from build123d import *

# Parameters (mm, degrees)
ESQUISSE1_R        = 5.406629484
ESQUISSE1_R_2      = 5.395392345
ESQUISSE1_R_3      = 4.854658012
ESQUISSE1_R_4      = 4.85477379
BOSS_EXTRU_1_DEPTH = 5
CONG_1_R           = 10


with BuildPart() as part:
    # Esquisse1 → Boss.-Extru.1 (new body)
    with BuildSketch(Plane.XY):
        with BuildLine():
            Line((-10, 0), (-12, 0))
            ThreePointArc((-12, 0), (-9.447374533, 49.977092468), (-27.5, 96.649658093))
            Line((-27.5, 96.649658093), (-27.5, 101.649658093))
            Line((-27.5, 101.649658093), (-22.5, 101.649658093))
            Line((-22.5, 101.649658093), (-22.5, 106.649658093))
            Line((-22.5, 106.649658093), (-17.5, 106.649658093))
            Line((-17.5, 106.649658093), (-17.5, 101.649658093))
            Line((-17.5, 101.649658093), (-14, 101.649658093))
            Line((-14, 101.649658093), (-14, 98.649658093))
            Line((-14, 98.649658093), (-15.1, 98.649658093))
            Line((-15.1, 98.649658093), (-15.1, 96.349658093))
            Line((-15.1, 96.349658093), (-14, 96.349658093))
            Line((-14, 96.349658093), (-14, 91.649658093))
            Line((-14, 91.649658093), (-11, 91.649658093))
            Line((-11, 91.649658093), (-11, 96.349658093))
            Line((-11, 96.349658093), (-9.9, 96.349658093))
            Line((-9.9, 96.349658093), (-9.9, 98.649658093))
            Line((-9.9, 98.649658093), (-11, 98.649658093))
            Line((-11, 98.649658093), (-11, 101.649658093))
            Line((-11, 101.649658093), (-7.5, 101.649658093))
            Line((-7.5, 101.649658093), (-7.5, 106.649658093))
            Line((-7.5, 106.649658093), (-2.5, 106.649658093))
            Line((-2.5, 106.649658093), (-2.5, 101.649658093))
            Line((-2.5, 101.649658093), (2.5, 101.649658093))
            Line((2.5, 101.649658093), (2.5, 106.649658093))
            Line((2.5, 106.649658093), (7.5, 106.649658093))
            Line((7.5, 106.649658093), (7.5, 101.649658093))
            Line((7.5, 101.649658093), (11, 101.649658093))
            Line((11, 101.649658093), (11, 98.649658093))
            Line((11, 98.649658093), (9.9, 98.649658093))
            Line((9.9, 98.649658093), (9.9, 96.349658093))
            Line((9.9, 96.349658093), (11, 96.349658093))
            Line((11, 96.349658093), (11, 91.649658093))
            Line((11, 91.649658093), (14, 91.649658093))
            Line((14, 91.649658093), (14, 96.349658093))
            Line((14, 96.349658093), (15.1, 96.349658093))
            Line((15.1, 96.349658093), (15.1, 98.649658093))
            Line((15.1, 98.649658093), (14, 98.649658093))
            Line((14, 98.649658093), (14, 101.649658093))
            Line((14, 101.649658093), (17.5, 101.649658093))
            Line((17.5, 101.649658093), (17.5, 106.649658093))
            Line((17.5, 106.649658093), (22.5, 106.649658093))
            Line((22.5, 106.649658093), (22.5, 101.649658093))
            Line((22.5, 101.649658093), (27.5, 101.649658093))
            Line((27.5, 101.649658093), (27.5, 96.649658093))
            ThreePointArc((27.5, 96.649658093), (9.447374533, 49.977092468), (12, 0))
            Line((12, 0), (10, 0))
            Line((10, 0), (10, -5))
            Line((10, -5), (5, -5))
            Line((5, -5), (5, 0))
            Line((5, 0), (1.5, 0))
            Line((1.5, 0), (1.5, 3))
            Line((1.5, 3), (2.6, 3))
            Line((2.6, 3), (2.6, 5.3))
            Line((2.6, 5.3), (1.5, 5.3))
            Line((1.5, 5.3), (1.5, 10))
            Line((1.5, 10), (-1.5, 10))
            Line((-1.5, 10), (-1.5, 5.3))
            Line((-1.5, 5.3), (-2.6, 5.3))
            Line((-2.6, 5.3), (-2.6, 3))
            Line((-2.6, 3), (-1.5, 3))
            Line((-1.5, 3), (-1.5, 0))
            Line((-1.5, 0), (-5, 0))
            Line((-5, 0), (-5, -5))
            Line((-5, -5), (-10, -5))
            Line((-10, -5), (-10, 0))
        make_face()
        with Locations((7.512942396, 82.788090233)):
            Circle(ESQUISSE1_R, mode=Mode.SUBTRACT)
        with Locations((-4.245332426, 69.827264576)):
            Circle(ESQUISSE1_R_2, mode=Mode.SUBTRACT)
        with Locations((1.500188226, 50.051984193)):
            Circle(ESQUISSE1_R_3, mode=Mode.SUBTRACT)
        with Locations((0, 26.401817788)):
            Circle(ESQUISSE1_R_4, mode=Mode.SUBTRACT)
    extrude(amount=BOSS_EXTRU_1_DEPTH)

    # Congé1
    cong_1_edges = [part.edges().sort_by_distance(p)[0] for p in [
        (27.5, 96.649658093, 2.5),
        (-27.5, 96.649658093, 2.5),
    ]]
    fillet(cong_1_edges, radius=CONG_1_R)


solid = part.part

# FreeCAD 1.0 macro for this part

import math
import FreeCAD as App
import Part
import Sketcher


def edges_at(feature, points):
    """Names of the edges that pass closest to the given points."""
    edges = feature.Shape.Edges
    near = lambda p: min(range(len(edges)), key=lambda i: edges[i].distToShape(Part.Vertex(*p))[0])
    return sorted({f"Edge{near(p) + 1}" for p in points})

doc = App.newDocument("Part")
body = doc.addObject("PartDesign::Body", "Body")

sketch1 = body.newObject("Sketcher::SketchObject", "Sketch")
sketch1.AttachmentSupport = (doc.getObject("XY_Plane"), [""])
sketch1.MapMode = "FlatFace"
sketch1.addGeometry([
    Part.LineSegment(App.Vector(-12, 0, 0), App.Vector(-10, 0, 0)),
    Part.LineSegment(App.Vector(-10, 0, 0), App.Vector(-10, -5, 0)),
    Part.LineSegment(App.Vector(-10, -5, 0), App.Vector(-5, -5, 0)),
    Part.LineSegment(App.Vector(-5, -5, 0), App.Vector(-5, 0, 0)),
    Part.LineSegment(App.Vector(-5, 0, 0), App.Vector(-1.5, 0, 0)),
    Part.LineSegment(App.Vector(-1.5, 0, 0), App.Vector(-1.5, 3, 0)),
    Part.LineSegment(App.Vector(-1.5, 3, 0), App.Vector(-2.6, 3, 0)),
    Part.LineSegment(App.Vector(-2.6, 3, 0), App.Vector(-2.6, 5.3, 0)),
    Part.LineSegment(App.Vector(-2.6, 5.3, 0), App.Vector(-1.5, 5.3, 0)),
    Part.LineSegment(App.Vector(-1.5, 5.3, 0), App.Vector(-1.5, 10, 0)),
    Part.LineSegment(App.Vector(-1.5, 10, 0), App.Vector(1.5, 10, 0)),
    Part.LineSegment(App.Vector(1.5, 10, 0), App.Vector(1.5, 5.3, 0)),
    Part.LineSegment(App.Vector(1.5, 5.3, 0), App.Vector(2.6, 5.3, 0)),
    Part.LineSegment(App.Vector(2.6, 5.3, 0), App.Vector(2.6, 3, 0)),
    Part.LineSegment(App.Vector(2.6, 3, 0), App.Vector(1.5, 3, 0)),
    Part.LineSegment(App.Vector(1.5, 3, 0), App.Vector(1.5, 0, 0)),
    Part.LineSegment(App.Vector(1.5, 0, 0), App.Vector(5, 0, 0)),
    Part.LineSegment(App.Vector(5, 0, 0), App.Vector(5, -5, 0)),
    Part.LineSegment(App.Vector(5, -5, 0), App.Vector(10, -5, 0)),
    Part.LineSegment(App.Vector(10, -5, 0), App.Vector(10, 0, 0)),
    Part.LineSegment(App.Vector(10, 0, 0), App.Vector(12, 0, 0)),
    Part.ArcOfCircle(Part.Circle(App.Vector(127.933347, 30.975136, 0), App.Vector(0, 0, 1), 120), math.radians(146.818865), math.radians(194.958903)),
    Part.LineSegment(App.Vector(27.5, 96.649658, 0), App.Vector(27.5, 101.649658, 0)),
    Part.LineSegment(App.Vector(27.5, 101.649658, 0), App.Vector(22.5, 101.649658, 0)),
    Part.LineSegment(App.Vector(22.5, 101.649658, 0), App.Vector(22.5, 106.649658, 0)),
    Part.LineSegment(App.Vector(22.5, 106.649658, 0), App.Vector(17.5, 106.649658, 0)),
    Part.LineSegment(App.Vector(17.5, 106.649658, 0), App.Vector(17.5, 101.649658, 0)),
    Part.LineSegment(App.Vector(17.5, 101.649658, 0), App.Vector(14, 101.649658, 0)),
    Part.LineSegment(App.Vector(14, 101.649658, 0), App.Vector(14, 98.649658, 0)),
    Part.LineSegment(App.Vector(14, 98.649658, 0), App.Vector(15.1, 98.649658, 0)),
    Part.LineSegment(App.Vector(15.1, 98.649658, 0), App.Vector(15.1, 96.349658, 0)),
    Part.LineSegment(App.Vector(15.1, 96.349658, 0), App.Vector(14, 96.349658, 0)),
    Part.LineSegment(App.Vector(14, 96.349658, 0), App.Vector(14, 91.649658, 0)),
    Part.LineSegment(App.Vector(14, 91.649658, 0), App.Vector(11, 91.649658, 0)),
    Part.LineSegment(App.Vector(11, 91.649658, 0), App.Vector(11, 96.349658, 0)),
    Part.LineSegment(App.Vector(11, 96.349658, 0), App.Vector(9.9, 96.349658, 0)),
    Part.LineSegment(App.Vector(9.9, 96.349658, 0), App.Vector(9.9, 98.649658, 0)),
    Part.LineSegment(App.Vector(9.9, 98.649658, 0), App.Vector(11, 98.649658, 0)),
    Part.LineSegment(App.Vector(11, 98.649658, 0), App.Vector(11, 101.649658, 0)),
    Part.LineSegment(App.Vector(11, 101.649658, 0), App.Vector(7.5, 101.649658, 0)),
    Part.LineSegment(App.Vector(7.5, 101.649658, 0), App.Vector(7.5, 106.649658, 0)),
    Part.LineSegment(App.Vector(7.5, 106.649658, 0), App.Vector(2.5, 106.649658, 0)),
    Part.LineSegment(App.Vector(2.5, 106.649658, 0), App.Vector(2.5, 101.649658, 0)),
    Part.LineSegment(App.Vector(2.5, 101.649658, 0), App.Vector(-2.5, 101.649658, 0)),
    Part.LineSegment(App.Vector(-2.5, 101.649658, 0), App.Vector(-2.5, 106.649658, 0)),
    Part.LineSegment(App.Vector(-2.5, 106.649658, 0), App.Vector(-7.5, 106.649658, 0)),
    Part.LineSegment(App.Vector(-7.5, 106.649658, 0), App.Vector(-7.5, 101.649658, 0)),
    Part.LineSegment(App.Vector(-7.5, 101.649658, 0), App.Vector(-11, 101.649658, 0)),
    Part.LineSegment(App.Vector(-11, 101.649658, 0), App.Vector(-11, 98.649658, 0)),
    Part.LineSegment(App.Vector(-11, 98.649658, 0), App.Vector(-9.9, 98.649658, 0)),
    Part.LineSegment(App.Vector(-9.9, 98.649658, 0), App.Vector(-9.9, 96.349658, 0)),
    Part.LineSegment(App.Vector(-9.9, 96.349658, 0), App.Vector(-11, 96.349658, 0)),
    Part.LineSegment(App.Vector(-11, 96.349658, 0), App.Vector(-11, 91.649658, 0)),
    Part.LineSegment(App.Vector(-11, 91.649658, 0), App.Vector(-14, 91.649658, 0)),
    Part.LineSegment(App.Vector(-14, 91.649658, 0), App.Vector(-14, 96.349658, 0)),
    Part.LineSegment(App.Vector(-14, 96.349658, 0), App.Vector(-15.1, 96.349658, 0)),
    Part.LineSegment(App.Vector(-15.1, 96.349658, 0), App.Vector(-15.1, 98.649658, 0)),
    Part.LineSegment(App.Vector(-15.1, 98.649658, 0), App.Vector(-14, 98.649658, 0)),
    Part.LineSegment(App.Vector(-14, 98.649658, 0), App.Vector(-14, 101.649658, 0)),
    Part.LineSegment(App.Vector(-14, 101.649658, 0), App.Vector(-17.5, 101.649658, 0)),
    Part.LineSegment(App.Vector(-17.5, 101.649658, 0), App.Vector(-17.5, 106.649658, 0)),
    Part.LineSegment(App.Vector(-17.5, 106.649658, 0), App.Vector(-22.5, 106.649658, 0)),
    Part.LineSegment(App.Vector(-22.5, 106.649658, 0), App.Vector(-22.5, 101.649658, 0)),
    Part.LineSegment(App.Vector(-22.5, 101.649658, 0), App.Vector(-27.5, 101.649658, 0)),
    Part.LineSegment(App.Vector(-27.5, 101.649658, 0), App.Vector(-27.5, 96.649658, 0)),
    Part.ArcOfCircle(Part.Circle(App.Vector(-127.933347, 30.975136, 0), App.Vector(0, 0, 1), 120), math.radians(-14.958903), math.radians(33.181135)),
    Part.Circle(App.Vector(0, 26.401818, 0), App.Vector(0, 0, 1), 4.854774),
    Part.Circle(App.Vector(1.500188, 50.051984, 0), App.Vector(0, 0, 1), 4.854658),
    Part.Circle(App.Vector(7.512942, 82.78809, 0), App.Vector(0, 0, 1), 5.406629),
    Part.Circle(App.Vector(-4.245332, 69.827265, 0), App.Vector(0, 0, 1), 5.395392),
], False)
sketch1.addConstraint([
    Sketcher.Constraint("Coincident", 0, 2, 1, 1),
    Sketcher.Constraint("Coincident", 1, 2, 2, 1),
    Sketcher.Constraint("Coincident", 2, 2, 3, 1),
    Sketcher.Constraint("Coincident", 3, 2, 4, 1),
    Sketcher.Constraint("Coincident", 4, 2, 5, 1),
    Sketcher.Constraint("Coincident", 5, 2, 6, 1),
    Sketcher.Constraint("Coincident", 6, 2, 7, 1),
    Sketcher.Constraint("Coincident", 7, 2, 8, 1),
    Sketcher.Constraint("Coincident", 8, 2, 9, 1),
    Sketcher.Constraint("Coincident", 9, 2, 10, 1),
    Sketcher.Constraint("Coincident", 10, 2, 11, 1),
    Sketcher.Constraint("Coincident", 11, 2, 12, 1),
    Sketcher.Constraint("Coincident", 12, 2, 13, 1),
    Sketcher.Constraint("Coincident", 13, 2, 14, 1),
    Sketcher.Constraint("Coincident", 14, 2, 15, 1),
    Sketcher.Constraint("Coincident", 15, 2, 16, 1),
    Sketcher.Constraint("Coincident", 16, 2, 17, 1),
    Sketcher.Constraint("Coincident", 17, 2, 18, 1),
    Sketcher.Constraint("Coincident", 18, 2, 19, 1),
    Sketcher.Constraint("Coincident", 19, 2, 20, 1),
    Sketcher.Constraint("Coincident", 20, 2, 21, 2),
    Sketcher.Constraint("Coincident", 21, 1, 22, 1),
    Sketcher.Constraint("Coincident", 22, 2, 23, 1),
    Sketcher.Constraint("Coincident", 23, 2, 24, 1),
    Sketcher.Constraint("Coincident", 24, 2, 25, 1),
    Sketcher.Constraint("Coincident", 25, 2, 26, 1),
    Sketcher.Constraint("Coincident", 26, 2, 27, 1),
    Sketcher.Constraint("Coincident", 27, 2, 28, 1),
    Sketcher.Constraint("Coincident", 28, 2, 29, 1),
    Sketcher.Constraint("Coincident", 29, 2, 30, 1),
    Sketcher.Constraint("Coincident", 30, 2, 31, 1),
    Sketcher.Constraint("Coincident", 31, 2, 32, 1),
    Sketcher.Constraint("Coincident", 32, 2, 33, 1),
    Sketcher.Constraint("Coincident", 33, 2, 34, 1),
    Sketcher.Constraint("Coincident", 34, 2, 35, 1),
    Sketcher.Constraint("Coincident", 35, 2, 36, 1),
    Sketcher.Constraint("Coincident", 36, 2, 37, 1),
    Sketcher.Constraint("Coincident", 37, 2, 38, 1),
    Sketcher.Constraint("Coincident", 38, 2, 39, 1),
    Sketcher.Constraint("Coincident", 39, 2, 40, 1),
    Sketcher.Constraint("Coincident", 40, 2, 41, 1),
    Sketcher.Constraint("Coincident", 41, 2, 42, 1),
    Sketcher.Constraint("Coincident", 42, 2, 43, 1),
    Sketcher.Constraint("Coincident", 43, 2, 44, 1),
    Sketcher.Constraint("Coincident", 44, 2, 45, 1),
    Sketcher.Constraint("Coincident", 45, 2, 46, 1),
    Sketcher.Constraint("Coincident", 46, 2, 47, 1),
    Sketcher.Constraint("Coincident", 47, 2, 48, 1),
    Sketcher.Constraint("Coincident", 48, 2, 49, 1),
    Sketcher.Constraint("Coincident", 49, 2, 50, 1),
    Sketcher.Constraint("Coincident", 50, 2, 51, 1),
    Sketcher.Constraint("Coincident", 51, 2, 52, 1),
    Sketcher.Constraint("Coincident", 52, 2, 53, 1),
    Sketcher.Constraint("Coincident", 53, 2, 54, 1),
    Sketcher.Constraint("Coincident", 54, 2, 55, 1),
    Sketcher.Constraint("Coincident", 55, 2, 56, 1),
    Sketcher.Constraint("Coincident", 56, 2, 57, 1),
    Sketcher.Constraint("Coincident", 57, 2, 58, 1),
    Sketcher.Constraint("Coincident", 58, 2, 59, 1),
    Sketcher.Constraint("Coincident", 59, 2, 60, 1),
    Sketcher.Constraint("Coincident", 60, 2, 61, 1),
    Sketcher.Constraint("Coincident", 61, 2, 62, 1),
    Sketcher.Constraint("Coincident", 62, 2, 63, 1),
    Sketcher.Constraint("Coincident", 63, 2, 64, 1),
    Sketcher.Constraint("Coincident", 64, 2, 65, 2),
    Sketcher.Constraint("Coincident", 65, 1, 0, 1),
    Sketcher.Constraint("Horizontal", 0),
    Sketcher.Constraint("Vertical", 1),
    Sketcher.Constraint("Horizontal", 2),
    Sketcher.Constraint("Vertical", 3),
    Sketcher.Constraint("Horizontal", 4),
    Sketcher.Constraint("Vertical", 5),
    Sketcher.Constraint("Horizontal", 6),
    Sketcher.Constraint("Vertical", 7),
    Sketcher.Constraint("Horizontal", 8),
    Sketcher.Constraint("Vertical", 9),
    Sketcher.Constraint("Horizontal", 10),
    Sketcher.Constraint("Vertical", 11),
    Sketcher.Constraint("Horizontal", 12),
    Sketcher.Constraint("Vertical", 13),
    Sketcher.Constraint("Horizontal", 14),
    Sketcher.Constraint("Vertical", 15),
    Sketcher.Constraint("Horizontal", 16),
    Sketcher.Constraint("Vertical", 17),
    Sketcher.Constraint("Horizontal", 18),
    Sketcher.Constraint("Vertical", 19),
    Sketcher.Constraint("Horizontal", 20),
    Sketcher.Constraint("Vertical", 22),
    Sketcher.Constraint("Horizontal", 23),
    Sketcher.Constraint("Vertical", 24),
    Sketcher.Constraint("Horizontal", 25),
    Sketcher.Constraint("Vertical", 26),
    Sketcher.Constraint("Horizontal", 27),
    Sketcher.Constraint("Vertical", 28),
    Sketcher.Constraint("Horizontal", 29),
    Sketcher.Constraint("Vertical", 30),
    Sketcher.Constraint("Horizontal", 31),
    Sketcher.Constraint("Vertical", 32),
    Sketcher.Constraint("Horizontal", 33),
    Sketcher.Constraint("Vertical", 34),
    Sketcher.Constraint("Horizontal", 35),
    Sketcher.Constraint("Vertical", 36),
    Sketcher.Constraint("Horizontal", 37),
    Sketcher.Constraint("Vertical", 38),
    Sketcher.Constraint("Horizontal", 39),
    Sketcher.Constraint("Vertical", 40),
    Sketcher.Constraint("Horizontal", 41),
    Sketcher.Constraint("Vertical", 42),
    Sketcher.Constraint("Horizontal", 43),
    Sketcher.Constraint("Vertical", 44),
    Sketcher.Constraint("Horizontal", 45),
    Sketcher.Constraint("Vertical", 46),
    Sketcher.Constraint("Horizontal", 47),
    Sketcher.Constraint("Vertical", 48),
    Sketcher.Constraint("Horizontal", 49),
    Sketcher.Constraint("Vertical", 50),
    Sketcher.Constraint("Horizontal", 51),
    Sketcher.Constraint("Vertical", 52),
    Sketcher.Constraint("Horizontal", 53),
    Sketcher.Constraint("Vertical", 54),
    Sketcher.Constraint("Horizontal", 55),
    Sketcher.Constraint("Vertical", 56),
    Sketcher.Constraint("Horizontal", 57),
    Sketcher.Constraint("Vertical", 58),
    Sketcher.Constraint("Horizontal", 59),
    Sketcher.Constraint("Vertical", 60),
    Sketcher.Constraint("Horizontal", 61),
    Sketcher.Constraint("Vertical", 62),
    Sketcher.Constraint("Horizontal", 63),
    Sketcher.Constraint("Vertical", 64),
    Sketcher.Constraint("Equal", 21, 65),
    Sketcher.Constraint("Symmetric", 4, 2, 15, 2, -1, 1),
    Sketcher.Constraint("Symmetric", 0, 2, 19, 2, -1, 1),
    Sketcher.Constraint("Symmetric", 21, 3, 65, 3, -2),
    Sketcher.Constraint("Symmetric", 8, 2, 11, 2, -2),
    Sketcher.Constraint("Symmetric", 6, 2, 13, 2, -2),
    Sketcher.Constraint("Symmetric", 3, 2, 16, 2, -2),
    Sketcher.Constraint("Symmetric", 41, 2, 44, 2, -2),
    Sketcher.Constraint("Symmetric", 39, 2, 46, 2, -2),
    Sketcher.Constraint("Symmetric", 37, 2, 48, 2, -2),
    Sketcher.Constraint("Symmetric", 35, 2, 50, 2, -2),
    Sketcher.Constraint("Symmetric", 33, 2, 52, 2, -2),
    Sketcher.Constraint("Symmetric", 31, 2, 54, 2, -2),
    Sketcher.Constraint("Symmetric", 29, 2, 56, 2, -2),
    Sketcher.Constraint("Symmetric", 27, 2, 58, 2, -2),
    Sketcher.Constraint("Symmetric", 25, 2, 60, 2, -2),
    Sketcher.Constraint("Symmetric", 23, 2, 62, 2, -2),
    Sketcher.Constraint("PointOnObject", 66, 3, -2),
    Sketcher.Constraint("PointOnObject", 0, 2, -1),
    Sketcher.Constraint("Horizontal", 2, 2, 17, 2),
    Sketcher.Constraint("Horizontal", 23, 2, 26, 2),
    Sketcher.Constraint("Horizontal", 31, 2, 34, 2),
    Sketcher.Constraint("Horizontal", 29, 2, 36, 2),
    Sketcher.Constraint("Horizontal", 27, 2, 38, 2),
    Sketcher.Constraint("Horizontal", 25, 2, 40, 2),
    Sketcher.Constraint("Horizontal", 39, 2, 42, 2),
    Sketcher.Constraint("Horizontal", 21, 1, 64, 2),
    Sketcher.Constraint("Vertical", 5, 2, 8, 2),
    Sketcher.Constraint("Vertical", 28, 2, 31, 2),
    Sketcher.Constraint("Vertical", 34, 2, 37, 2),
    Sketcher.Constraint("Equal", 18, 23),
    Sketcher.Constraint("Equal", 23, 25),
    Sketcher.Constraint("Equal", 16, 27),
    Sketcher.Constraint("Equal", 14, 29),
    Sketcher.Constraint("Equal", 10, 33),
    Sketcher.Constraint("Equal", 31, 35),
    Sketcher.Constraint("Equal", 27, 39),
    Sketcher.Constraint("Equal", 25, 41),
    Sketcher.Constraint("Equal", 41, 43),
    Sketcher.Constraint("Equal", 63, 1),
    Sketcher.Constraint("Equal", 53, 5),
    Sketcher.Constraint("Equal", 19, 22),
    Sketcher.Constraint("Equal", 22, 24),
    Sketcher.Constraint("Equal", 15, 28),
    Sketcher.Constraint("Equal", 13, 30),
    Sketcher.Constraint("Equal", 11, 32),
    Sketcher.Constraint("Radius", 21, 120.0),
    Sketcher.Constraint("DistanceX", 0, 1, 0, 2, 2.0),
    Sketcher.Constraint("DistanceX", 2, 1, 2, 2, 5.0),
    Sketcher.Constraint("DistanceX", 10, 1, 10, 2, 3.0),
    Sketcher.Constraint("DistanceX", 4, 1, 4, 2, 3.5),
    Sketcher.Constraint("DistanceX", 6, 2, 6, 1, 1.1),
    Sketcher.Constraint("DistanceY", 7, 1, 7, 2, 2.3),
    Sketcher.Constraint("DistanceY", 9, 1, 9, 2, 4.7),
    Sketcher.Constraint("Diameter", 68, 10.813259),
    Sketcher.Constraint("Diameter", 66, 9.709548),
    Sketcher.Constraint("Diameter", 67, 9.709316),
    Sketcher.Constraint("Diameter", 69, 10.790785),
    Sketcher.Constraint("DistanceX", -1, 1, 67, 3, 1.500188),
    Sketcher.Constraint("DistanceY", -1, 1, 68, 3, 82.78809),
    Sketcher.Constraint("DistanceY", -1, 1, 22, 2, 101.649658),
    Sketcher.Constraint("DistanceY", -1, 1, 66, 3, 26.401818),
    Sketcher.Constraint("DistanceY", -1, 1, 67, 3, 50.051984),
    Sketcher.Constraint("DistanceX", -1, 1, 68, 3, 7.512942),
    Sketcher.Constraint("DistanceX", 69, 3, -1, 1, 4.245332),
    Sketcher.Constraint("DistanceY", -1, 1, 69, 3, 69.827265),
])
pad1 = body.newObject("PartDesign::Pad", "Pad")
pad1.Profile = sketch1
pad1.Length = 5
doc.recompute()

fillet = body.newObject("PartDesign::Fillet", "Fillet")
fillet.Base = (pad1, edges_at(pad1, [(27.5, 96.65, 2.5), (-27.5, 96.65, 2.5)]))
fillet.Radius = 10

doc.recompute()
